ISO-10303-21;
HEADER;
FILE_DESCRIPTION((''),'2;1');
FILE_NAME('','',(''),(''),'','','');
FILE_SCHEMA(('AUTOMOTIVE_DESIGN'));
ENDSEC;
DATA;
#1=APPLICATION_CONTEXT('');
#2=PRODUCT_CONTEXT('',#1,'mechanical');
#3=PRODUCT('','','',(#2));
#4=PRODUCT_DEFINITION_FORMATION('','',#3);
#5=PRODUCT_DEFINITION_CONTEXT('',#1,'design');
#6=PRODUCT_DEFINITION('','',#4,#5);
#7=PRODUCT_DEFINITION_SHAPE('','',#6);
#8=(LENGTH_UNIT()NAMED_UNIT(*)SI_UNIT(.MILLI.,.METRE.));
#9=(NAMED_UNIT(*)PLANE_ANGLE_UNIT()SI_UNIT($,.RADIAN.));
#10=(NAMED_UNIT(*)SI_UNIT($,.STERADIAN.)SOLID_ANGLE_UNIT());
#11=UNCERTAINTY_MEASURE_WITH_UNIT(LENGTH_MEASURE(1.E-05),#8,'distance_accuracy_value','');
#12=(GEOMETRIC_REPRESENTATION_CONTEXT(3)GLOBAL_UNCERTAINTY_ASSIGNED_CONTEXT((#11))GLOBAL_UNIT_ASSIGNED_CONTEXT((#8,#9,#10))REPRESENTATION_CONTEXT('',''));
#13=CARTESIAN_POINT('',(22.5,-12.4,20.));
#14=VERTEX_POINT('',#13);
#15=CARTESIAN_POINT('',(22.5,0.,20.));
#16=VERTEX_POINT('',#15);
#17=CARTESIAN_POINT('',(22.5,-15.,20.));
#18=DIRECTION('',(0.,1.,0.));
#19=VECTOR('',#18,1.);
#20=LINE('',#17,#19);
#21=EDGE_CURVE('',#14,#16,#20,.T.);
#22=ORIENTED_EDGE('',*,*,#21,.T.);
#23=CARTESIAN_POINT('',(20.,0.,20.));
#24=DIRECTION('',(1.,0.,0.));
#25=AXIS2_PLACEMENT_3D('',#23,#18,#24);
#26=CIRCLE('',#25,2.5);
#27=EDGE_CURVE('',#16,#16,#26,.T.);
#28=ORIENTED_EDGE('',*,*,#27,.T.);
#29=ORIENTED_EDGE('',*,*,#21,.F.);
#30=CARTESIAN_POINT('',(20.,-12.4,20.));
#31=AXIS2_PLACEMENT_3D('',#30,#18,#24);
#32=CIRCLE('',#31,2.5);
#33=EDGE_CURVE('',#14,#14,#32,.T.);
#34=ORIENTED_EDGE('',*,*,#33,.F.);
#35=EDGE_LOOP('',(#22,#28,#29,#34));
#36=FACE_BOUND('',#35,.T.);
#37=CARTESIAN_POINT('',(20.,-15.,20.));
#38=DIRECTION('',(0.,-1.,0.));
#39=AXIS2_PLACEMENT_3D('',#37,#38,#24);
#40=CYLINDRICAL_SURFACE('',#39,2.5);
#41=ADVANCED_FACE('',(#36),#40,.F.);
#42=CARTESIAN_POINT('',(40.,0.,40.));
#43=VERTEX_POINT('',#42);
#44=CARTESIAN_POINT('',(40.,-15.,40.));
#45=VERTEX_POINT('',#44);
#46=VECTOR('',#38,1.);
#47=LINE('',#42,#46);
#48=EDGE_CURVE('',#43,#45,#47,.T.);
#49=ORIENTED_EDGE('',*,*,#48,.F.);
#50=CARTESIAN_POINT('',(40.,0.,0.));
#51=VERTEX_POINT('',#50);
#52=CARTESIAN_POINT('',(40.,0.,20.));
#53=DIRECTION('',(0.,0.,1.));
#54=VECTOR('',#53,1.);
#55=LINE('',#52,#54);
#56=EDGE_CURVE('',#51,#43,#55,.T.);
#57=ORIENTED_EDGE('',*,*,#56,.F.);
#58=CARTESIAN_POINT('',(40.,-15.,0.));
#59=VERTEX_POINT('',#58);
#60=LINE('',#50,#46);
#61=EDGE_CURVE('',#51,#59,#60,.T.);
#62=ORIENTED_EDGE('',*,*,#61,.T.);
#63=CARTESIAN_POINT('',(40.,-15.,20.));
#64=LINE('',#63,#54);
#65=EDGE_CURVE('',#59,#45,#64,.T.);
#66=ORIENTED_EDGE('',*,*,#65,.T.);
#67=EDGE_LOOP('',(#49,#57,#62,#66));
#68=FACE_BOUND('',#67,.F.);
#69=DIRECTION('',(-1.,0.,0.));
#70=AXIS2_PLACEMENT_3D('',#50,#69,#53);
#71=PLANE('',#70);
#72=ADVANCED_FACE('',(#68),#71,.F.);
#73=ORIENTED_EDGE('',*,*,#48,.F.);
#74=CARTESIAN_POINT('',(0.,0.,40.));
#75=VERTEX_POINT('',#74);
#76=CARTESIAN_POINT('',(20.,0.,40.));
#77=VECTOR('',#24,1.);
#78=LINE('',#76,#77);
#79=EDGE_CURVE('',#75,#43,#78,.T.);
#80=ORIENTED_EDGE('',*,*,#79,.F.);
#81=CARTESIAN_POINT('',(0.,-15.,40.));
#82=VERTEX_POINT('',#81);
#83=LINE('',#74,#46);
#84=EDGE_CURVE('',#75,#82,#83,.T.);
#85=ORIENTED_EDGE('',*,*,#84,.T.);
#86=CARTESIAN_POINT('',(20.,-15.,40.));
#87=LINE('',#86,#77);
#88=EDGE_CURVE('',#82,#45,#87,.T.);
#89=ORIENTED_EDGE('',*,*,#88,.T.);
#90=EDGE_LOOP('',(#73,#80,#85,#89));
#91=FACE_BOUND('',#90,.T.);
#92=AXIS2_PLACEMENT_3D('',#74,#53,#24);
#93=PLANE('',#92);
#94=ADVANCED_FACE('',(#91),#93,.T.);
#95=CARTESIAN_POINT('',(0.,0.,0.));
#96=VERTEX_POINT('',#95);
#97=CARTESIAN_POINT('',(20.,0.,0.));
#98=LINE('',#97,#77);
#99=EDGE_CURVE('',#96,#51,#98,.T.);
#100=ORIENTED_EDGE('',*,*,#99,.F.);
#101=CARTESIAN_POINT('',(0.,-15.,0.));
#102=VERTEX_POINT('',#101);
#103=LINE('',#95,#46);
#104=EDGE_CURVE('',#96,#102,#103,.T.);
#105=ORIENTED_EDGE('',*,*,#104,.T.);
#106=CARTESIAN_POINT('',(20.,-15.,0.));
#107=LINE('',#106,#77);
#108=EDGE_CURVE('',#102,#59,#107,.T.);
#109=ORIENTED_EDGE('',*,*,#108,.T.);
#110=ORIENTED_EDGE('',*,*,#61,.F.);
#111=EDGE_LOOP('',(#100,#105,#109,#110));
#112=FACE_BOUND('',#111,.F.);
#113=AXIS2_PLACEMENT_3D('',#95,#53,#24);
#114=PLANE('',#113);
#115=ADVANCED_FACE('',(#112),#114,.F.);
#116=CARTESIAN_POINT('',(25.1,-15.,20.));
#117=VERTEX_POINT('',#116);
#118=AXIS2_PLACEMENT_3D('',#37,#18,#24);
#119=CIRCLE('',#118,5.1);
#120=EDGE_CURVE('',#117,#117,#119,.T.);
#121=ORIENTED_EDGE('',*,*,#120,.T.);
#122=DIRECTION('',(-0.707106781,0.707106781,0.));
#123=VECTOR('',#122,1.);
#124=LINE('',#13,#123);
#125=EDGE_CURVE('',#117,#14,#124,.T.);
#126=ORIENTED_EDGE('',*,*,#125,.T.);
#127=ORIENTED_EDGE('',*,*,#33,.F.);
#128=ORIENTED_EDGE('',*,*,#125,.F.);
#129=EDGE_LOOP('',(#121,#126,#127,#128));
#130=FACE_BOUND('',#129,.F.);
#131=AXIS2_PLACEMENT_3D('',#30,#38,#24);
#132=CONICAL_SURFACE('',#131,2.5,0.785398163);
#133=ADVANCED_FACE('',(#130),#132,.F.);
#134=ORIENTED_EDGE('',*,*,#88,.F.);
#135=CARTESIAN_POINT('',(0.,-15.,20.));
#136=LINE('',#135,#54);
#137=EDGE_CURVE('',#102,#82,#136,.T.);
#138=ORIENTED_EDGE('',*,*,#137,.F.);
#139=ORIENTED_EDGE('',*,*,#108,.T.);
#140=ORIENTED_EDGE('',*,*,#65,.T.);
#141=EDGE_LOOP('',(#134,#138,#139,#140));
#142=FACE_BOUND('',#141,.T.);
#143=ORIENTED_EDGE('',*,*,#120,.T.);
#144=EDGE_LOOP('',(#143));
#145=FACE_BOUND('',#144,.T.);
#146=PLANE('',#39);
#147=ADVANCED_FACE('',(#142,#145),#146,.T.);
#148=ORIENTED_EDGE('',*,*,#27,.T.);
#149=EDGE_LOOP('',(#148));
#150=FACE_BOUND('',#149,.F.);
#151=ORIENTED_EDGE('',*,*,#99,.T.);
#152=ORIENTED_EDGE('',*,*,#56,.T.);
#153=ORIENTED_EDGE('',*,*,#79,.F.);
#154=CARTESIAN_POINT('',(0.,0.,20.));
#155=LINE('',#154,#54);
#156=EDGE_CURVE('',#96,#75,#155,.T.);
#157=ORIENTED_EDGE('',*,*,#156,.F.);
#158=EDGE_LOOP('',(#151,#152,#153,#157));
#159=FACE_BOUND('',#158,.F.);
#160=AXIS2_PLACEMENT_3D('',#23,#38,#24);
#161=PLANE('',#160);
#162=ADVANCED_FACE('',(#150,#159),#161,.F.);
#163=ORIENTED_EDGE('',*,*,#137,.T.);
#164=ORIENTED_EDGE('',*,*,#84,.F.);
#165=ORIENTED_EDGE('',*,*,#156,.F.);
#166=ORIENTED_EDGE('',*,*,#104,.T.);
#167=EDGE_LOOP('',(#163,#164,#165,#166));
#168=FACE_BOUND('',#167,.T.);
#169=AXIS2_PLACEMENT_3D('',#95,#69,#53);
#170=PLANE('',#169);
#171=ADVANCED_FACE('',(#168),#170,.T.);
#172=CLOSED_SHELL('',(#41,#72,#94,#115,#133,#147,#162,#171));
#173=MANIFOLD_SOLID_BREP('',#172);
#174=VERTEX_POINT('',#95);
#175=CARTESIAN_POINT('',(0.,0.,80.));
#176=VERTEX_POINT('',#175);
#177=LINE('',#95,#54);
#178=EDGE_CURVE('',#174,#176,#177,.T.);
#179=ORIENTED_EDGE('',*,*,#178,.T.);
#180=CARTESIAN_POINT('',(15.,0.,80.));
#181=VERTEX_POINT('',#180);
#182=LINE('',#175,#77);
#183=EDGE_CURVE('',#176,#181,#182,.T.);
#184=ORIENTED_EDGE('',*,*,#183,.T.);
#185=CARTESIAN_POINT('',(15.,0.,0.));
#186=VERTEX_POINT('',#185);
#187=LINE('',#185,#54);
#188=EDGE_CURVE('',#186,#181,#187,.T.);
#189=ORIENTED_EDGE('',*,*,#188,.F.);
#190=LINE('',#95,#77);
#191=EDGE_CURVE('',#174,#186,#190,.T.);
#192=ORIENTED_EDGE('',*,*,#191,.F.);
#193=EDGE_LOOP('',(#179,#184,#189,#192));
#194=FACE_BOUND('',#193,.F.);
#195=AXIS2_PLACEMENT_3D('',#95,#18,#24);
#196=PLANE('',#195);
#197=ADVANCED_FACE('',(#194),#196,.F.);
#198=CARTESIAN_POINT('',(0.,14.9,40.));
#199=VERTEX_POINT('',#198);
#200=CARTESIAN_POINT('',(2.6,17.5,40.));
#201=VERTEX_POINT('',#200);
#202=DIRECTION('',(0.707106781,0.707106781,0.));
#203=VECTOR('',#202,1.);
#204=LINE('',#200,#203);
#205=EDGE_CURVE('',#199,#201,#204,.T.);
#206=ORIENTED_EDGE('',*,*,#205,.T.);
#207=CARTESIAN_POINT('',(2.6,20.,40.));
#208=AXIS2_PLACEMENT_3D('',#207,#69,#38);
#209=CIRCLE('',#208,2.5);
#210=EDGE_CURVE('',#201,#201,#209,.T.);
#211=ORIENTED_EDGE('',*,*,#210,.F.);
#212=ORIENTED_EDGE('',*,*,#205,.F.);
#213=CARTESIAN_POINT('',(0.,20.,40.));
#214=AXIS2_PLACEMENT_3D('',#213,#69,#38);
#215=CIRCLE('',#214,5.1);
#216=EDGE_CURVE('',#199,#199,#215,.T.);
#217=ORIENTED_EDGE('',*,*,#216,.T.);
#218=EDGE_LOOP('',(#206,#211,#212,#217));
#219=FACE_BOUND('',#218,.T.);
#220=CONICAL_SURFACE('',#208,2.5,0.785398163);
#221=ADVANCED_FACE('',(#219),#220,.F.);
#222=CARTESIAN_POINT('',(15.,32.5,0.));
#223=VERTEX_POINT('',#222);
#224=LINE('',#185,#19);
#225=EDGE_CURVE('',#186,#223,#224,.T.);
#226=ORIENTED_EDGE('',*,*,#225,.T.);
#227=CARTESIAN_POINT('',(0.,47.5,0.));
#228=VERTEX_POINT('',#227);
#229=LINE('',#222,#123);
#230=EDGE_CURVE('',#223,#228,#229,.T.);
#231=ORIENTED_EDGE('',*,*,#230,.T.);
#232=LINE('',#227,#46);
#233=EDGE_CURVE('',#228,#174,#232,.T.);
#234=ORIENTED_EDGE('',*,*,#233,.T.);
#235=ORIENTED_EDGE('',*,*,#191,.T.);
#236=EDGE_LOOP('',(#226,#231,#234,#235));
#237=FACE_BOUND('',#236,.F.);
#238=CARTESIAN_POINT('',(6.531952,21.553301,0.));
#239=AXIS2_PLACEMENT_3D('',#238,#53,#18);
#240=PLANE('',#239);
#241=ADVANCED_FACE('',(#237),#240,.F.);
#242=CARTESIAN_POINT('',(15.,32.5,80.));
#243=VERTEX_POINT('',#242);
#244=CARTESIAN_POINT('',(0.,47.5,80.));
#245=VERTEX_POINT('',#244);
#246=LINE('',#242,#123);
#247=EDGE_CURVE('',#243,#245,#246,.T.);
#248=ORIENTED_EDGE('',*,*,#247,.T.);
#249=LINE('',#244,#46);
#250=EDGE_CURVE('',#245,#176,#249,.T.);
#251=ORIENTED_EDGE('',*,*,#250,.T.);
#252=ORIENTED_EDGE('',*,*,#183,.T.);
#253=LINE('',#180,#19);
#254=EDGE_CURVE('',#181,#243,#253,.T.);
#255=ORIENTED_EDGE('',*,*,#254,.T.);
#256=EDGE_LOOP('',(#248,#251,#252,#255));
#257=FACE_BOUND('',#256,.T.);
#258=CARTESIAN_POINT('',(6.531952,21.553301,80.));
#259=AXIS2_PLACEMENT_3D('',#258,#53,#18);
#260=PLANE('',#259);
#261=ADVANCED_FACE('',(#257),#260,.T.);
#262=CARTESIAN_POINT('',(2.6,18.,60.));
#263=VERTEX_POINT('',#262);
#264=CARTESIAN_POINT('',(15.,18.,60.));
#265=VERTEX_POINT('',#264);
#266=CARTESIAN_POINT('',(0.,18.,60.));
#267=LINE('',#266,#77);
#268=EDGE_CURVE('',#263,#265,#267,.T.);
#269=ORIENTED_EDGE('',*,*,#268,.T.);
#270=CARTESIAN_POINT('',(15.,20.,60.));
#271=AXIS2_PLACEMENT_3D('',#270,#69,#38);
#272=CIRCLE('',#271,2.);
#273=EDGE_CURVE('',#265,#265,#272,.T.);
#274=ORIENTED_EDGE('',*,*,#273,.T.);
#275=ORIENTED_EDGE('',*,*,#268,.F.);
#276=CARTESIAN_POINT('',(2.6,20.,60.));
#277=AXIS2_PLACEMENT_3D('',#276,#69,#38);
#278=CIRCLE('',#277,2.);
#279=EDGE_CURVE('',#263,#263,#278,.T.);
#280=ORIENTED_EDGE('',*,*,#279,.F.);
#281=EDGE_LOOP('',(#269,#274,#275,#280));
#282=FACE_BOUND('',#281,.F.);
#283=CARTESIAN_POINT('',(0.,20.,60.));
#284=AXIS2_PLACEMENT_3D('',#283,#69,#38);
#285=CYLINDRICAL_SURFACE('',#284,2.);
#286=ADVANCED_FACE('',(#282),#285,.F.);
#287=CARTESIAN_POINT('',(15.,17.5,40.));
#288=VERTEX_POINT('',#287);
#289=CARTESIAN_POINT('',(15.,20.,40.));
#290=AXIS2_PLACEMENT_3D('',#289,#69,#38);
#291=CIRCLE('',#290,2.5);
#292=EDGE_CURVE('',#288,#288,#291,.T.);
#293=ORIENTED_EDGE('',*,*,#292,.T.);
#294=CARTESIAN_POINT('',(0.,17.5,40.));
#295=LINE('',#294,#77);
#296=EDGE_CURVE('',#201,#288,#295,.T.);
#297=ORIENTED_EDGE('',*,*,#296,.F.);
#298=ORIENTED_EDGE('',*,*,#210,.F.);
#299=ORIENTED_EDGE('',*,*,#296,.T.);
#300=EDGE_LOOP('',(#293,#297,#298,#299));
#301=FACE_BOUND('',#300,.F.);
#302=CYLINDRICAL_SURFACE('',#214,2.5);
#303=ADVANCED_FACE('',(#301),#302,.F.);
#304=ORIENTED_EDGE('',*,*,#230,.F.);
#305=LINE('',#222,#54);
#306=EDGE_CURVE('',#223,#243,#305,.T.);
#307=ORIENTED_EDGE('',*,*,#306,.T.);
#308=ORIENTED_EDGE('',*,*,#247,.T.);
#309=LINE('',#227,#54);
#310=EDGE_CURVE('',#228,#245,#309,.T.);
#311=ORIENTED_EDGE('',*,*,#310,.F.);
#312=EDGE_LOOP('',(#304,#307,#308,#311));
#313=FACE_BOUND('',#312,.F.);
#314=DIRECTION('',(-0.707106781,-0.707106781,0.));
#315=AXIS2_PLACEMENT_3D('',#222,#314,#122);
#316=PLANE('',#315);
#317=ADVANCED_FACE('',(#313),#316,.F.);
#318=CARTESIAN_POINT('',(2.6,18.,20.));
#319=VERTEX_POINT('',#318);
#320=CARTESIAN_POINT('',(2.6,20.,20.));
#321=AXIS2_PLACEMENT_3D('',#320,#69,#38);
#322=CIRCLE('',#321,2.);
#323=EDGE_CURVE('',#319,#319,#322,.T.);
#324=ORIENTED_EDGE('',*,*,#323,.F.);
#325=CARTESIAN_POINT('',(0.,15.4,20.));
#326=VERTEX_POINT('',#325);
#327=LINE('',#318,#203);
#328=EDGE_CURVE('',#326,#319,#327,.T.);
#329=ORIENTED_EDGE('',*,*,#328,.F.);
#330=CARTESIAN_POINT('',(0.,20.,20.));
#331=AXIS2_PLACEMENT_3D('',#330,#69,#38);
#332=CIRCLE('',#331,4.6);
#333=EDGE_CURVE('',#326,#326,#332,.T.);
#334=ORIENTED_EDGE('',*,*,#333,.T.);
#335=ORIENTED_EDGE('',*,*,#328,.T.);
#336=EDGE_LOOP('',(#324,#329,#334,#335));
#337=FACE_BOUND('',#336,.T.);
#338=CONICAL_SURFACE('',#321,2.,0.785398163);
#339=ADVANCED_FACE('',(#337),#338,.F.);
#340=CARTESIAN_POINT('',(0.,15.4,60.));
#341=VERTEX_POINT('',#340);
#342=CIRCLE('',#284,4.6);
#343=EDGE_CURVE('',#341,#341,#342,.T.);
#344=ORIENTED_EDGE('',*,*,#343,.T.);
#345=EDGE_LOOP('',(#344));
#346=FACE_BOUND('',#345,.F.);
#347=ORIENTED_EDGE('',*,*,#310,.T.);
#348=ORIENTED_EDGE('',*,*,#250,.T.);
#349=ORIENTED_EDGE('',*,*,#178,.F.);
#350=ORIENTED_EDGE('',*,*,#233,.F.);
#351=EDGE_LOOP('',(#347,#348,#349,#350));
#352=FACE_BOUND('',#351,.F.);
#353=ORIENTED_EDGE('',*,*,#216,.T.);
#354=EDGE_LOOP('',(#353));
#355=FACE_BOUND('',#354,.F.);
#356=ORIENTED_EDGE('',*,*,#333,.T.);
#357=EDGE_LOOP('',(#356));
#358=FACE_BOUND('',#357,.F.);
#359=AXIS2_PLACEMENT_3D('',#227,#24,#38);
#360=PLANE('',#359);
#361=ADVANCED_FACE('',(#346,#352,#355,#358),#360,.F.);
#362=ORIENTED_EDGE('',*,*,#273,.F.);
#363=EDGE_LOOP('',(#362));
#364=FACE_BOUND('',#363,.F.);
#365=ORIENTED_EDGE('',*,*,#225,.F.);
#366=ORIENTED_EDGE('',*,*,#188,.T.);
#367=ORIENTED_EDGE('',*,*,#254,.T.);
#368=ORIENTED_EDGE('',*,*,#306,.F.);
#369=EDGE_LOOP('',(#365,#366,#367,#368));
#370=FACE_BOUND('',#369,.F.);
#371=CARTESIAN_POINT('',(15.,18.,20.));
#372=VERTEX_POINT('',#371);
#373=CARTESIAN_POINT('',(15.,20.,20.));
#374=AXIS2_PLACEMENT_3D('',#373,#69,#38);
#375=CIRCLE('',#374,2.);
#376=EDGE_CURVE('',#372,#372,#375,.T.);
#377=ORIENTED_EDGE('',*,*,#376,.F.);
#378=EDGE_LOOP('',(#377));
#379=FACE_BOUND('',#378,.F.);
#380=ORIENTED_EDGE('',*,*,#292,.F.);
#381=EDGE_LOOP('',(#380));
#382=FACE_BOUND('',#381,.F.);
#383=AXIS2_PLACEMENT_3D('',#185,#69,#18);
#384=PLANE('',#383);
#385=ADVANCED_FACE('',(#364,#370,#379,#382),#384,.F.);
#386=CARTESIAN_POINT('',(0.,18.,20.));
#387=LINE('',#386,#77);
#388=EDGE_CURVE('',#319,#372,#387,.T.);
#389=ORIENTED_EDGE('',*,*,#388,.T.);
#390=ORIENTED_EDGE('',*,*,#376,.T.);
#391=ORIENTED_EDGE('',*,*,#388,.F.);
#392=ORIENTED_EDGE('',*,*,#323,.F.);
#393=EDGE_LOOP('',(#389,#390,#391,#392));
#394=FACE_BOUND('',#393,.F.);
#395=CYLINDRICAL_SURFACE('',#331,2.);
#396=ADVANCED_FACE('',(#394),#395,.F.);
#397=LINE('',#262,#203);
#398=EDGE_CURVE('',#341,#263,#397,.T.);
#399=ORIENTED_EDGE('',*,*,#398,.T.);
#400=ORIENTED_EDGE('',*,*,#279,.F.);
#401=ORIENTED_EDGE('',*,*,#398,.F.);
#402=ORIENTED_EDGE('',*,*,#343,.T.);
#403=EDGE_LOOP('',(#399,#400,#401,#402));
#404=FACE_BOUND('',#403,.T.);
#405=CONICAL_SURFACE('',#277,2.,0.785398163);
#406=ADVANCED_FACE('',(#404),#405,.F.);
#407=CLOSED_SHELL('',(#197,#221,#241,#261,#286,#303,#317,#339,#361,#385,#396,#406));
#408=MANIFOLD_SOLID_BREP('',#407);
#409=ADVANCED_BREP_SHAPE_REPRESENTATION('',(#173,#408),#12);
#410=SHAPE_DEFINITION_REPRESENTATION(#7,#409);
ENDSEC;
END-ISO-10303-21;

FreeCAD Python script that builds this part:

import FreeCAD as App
import Part
import Sketcher
Q = App.Units.Quantity


def edges_at(feature, points):
    """Names of the edges that pass closest to the given points."""
    edges = feature.Shape.Edges
    near = lambda p: min(range(len(edges)), key=lambda i: edges[i].distToShape(Part.Vertex(*p))[0])
    return sorted({f"Edge{near(p) + 1}" for p in points})


def add_polygon(sketch, points):
    """Adds a closed chain of lines whose ends are joined by coincident constraints."""
    first, n = sketch.GeometryCount, len(points)
    for a, b in zip(points, points[1:] + points[:1]):
        sketch.addGeometry(Part.LineSegment(App.Vector(*a, 0), App.Vector(*b, 0)), False)
    for i in range(n):
        sketch.addConstraint(Sketcher.Constraint("Coincident", first + i, 2, first + (i + 1) % n, 1))

doc = App.newDocument("Part")
body = doc.addObject("PartDesign::Body", "Body")
body.AllowCompound = True

sketch1 = body.newObject("Sketcher::SketchObject", "Sketch")
sketch1.AttachmentSupport = (doc.getObject("YZ_Plane"), [""])
sketch1.MapMode = "FlatFace"
sketch1.addGeometry([
    Part.Circle(App.Vector(20, 40, 0), App.Vector(0, 0, 1), 2.5),
    Part.Circle(App.Vector(20, 60, 0), App.Vector(0, 0, 1), 2),
    Part.Circle(App.Vector(20, 20, 0), App.Vector(0, 0, 1), 2),
], False)
sketch1.addConstraint([
    Sketcher.Constraint("Equal", 1, 2),
    Sketcher.Constraint("Vertical", 0, 3, 1, 3),
    Sketcher.Constraint("Vertical", 1, 3, 2, 3),
    Sketcher.Constraint("Diameter", 0, 5.0),
    Sketcher.Constraint("Diameter", 1, 4.0),
    Sketcher.Constraint("DistanceX", -1, 1, 0, 3, 20.0),
    Sketcher.Constraint("DistanceY", -1, 1, 0, 3, 40.0),
    Sketcher.Constraint("DistanceY", -1, 1, 1, 3, 60.0),
    Sketcher.Constraint("DistanceY", -1, 1, 2, 3, 20.0),
])
pad1 = body.newObject("PartDesign::Pad", "Pad")
pad1.Profile = sketch1
pad1.Length = 15
body2 = doc.addObject("PartDesign::Body", "Body001")

sketch2 = body2.newObject("Sketcher::SketchObject", "Sketch001")
sketch2.AttachmentSupport = (doc.getObject("XY_Plane001"), [""])
sketch2.MapMode = "FlatFace"
add_polygon(sketch2, [(0, 48), (0, 0), (15, 0), (15, 32)])
sketch2.addConstraint([
    Sketcher.Constraint("Vertical", 0),
    Sketcher.Constraint("Horizontal", 1),
    Sketcher.Constraint("Vertical", 2),
    Sketcher.Constraint("Coincident", 0, 2, -1, 1),
    Sketcher.Constraint("DistanceX", 1, 1, 1, 2, 15.0),
    Sketcher.Constraint("Angle", 3, Q("135 deg")),
    Sketcher.Constraint("DistanceY", 0, 2, 0, 1, 47.5),
])
pad2 = body2.newObject("PartDesign::Pad", "Pad001")
pad2.Profile = sketch2
pad2.Length = 80
doc.recompute()

boolean = body2.newObject("PartDesign::Boolean", "Boolean")
boolean.Type = "Cut"
boolean.addObjects([body])
doc.recompute()

chamfer = body2.newObject("PartDesign::Chamfer", "Chamfer")
chamfer.Base = (boolean, edges_at(boolean, [(0, 22, 60), (0, 22.5, 40), (0, 22, 20)]))
chamfer.Size = 2.6
body3 = doc.addObject("PartDesign::Body", "Body002")

sketch3 = body3.newObject("Sketcher::SketchObject", "Sketch002")
sketch3.AttachmentSupport = (doc.getObject("XZ_Plane002"), [""])
sketch3.MapMode = "FlatFace"
sketch3.AttachmentOffset = App.Placement(App.Vector(0, 0, 15), App.Rotation())
sketch3.addGeometry(Part.Circle(App.Vector(20, 20, 0), App.Vector(0, 0, 1), 2.5), False)
sketch3.addConstraint([
    Sketcher.Constraint("Diameter", 0, 5.0),
    Sketcher.Constraint("DistanceX", -1, 1, 0, 3, 20.0),
    Sketcher.Constraint("DistanceY", -1, 1, 0, 3, 20.0),
])
pad3 = body3.newObject("PartDesign::Pad", "Pad002")
pad3.Profile = sketch3
pad3.Length = 15
pad3.Reversed = True
body4 = doc.addObject("PartDesign::Body", "Body003")

sketch4 = body4.newObject("Sketcher::SketchObject", "Sketch003")
sketch4.AttachmentSupport = (doc.getObject("XZ_Plane003"), [""])
sketch4.MapMode = "FlatFace"
add_polygon(sketch4, [(0, 40), (0, 0), (40, 0), (40, 40)])
sketch4.addConstraint([
    Sketcher.Constraint("Vertical", 0),
    Sketcher.Constraint("Horizontal", 1),
    Sketcher.Constraint("Vertical", 2),
    Sketcher.Constraint("Horizontal", 3),
    Sketcher.Constraint("Coincident", 0, 2, -1, 1),
    Sketcher.Constraint("Equal", 3, 0),
    Sketcher.Constraint("DistanceX", 1, 1, 1, 2, 40.0),
])
pad4 = body4.newObject("PartDesign::Pad", "Pad003")
pad4.Profile = sketch4
pad4.Length = 15
doc.recompute()

boolean2 = body4.newObject("PartDesign::Boolean", "Boolean001")
boolean2.Type = "Cut"
boolean2.addObjects([body3])
doc.recompute()

chamfer2 = body4.newObject("PartDesign::Chamfer", "Chamfer001")
chamfer2.Base = (boolean2, edges_at(boolean2, [(17.5, -15, 20)]))
chamfer2.Size = 2.6

doc.recompute()
